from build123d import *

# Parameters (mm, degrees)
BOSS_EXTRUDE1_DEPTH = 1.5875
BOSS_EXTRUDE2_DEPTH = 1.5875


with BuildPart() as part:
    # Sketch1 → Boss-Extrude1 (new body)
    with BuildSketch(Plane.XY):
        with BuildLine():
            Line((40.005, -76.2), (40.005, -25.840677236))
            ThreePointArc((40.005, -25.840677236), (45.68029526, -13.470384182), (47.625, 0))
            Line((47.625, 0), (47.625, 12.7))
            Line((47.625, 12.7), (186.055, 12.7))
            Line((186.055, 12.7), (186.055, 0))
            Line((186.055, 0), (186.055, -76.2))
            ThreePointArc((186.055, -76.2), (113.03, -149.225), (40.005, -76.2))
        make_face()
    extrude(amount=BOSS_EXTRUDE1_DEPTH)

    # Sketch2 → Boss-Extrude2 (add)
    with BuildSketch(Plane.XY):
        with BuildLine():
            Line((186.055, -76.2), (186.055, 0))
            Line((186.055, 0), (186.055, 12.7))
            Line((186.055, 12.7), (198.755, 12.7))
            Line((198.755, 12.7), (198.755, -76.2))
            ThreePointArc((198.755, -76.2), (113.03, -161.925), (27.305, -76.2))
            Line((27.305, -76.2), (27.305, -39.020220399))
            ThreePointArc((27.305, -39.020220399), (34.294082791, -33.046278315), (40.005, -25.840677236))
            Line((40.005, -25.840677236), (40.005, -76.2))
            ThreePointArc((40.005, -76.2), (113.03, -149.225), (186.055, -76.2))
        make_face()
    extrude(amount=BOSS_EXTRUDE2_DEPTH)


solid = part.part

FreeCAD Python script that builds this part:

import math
import FreeCAD as App
import Part
import Sketcher
Q = App.Units.Quantity

doc = App.newDocument("Part")
body = doc.addObject("PartDesign::Body", "Body")

# Sketch on XY plane
sketch1 = body.newObject("Sketcher::SketchObject", "Sketch")
sketch1.AttachmentSupport = (doc.getObject("XY_Plane"), [""])
sketch1.MapMode = "FlatFace"
sketch1.addGeometry([
    Part.LineSegment(App.Vector(40, -26, 0), App.Vector(40, -76, 0)),  # 0
    Part.ArcOfCircle(Part.Circle(App.Vector(113, -76, 0), App.Vector(0, 0, 1), 73), math.radians(180), math.radians(360)),  # 1
    Part.LineSegment(App.Vector(186, -76, 0), App.Vector(186, 13, 0)),  # 2
    Part.LineSegment(App.Vector(186, 13, 0), App.Vector(48, 13, 0)),  # 3
    Part.LineSegment(App.Vector(48, 13, 0), App.Vector(48, 0, 0)),  # 4
    Part.ArcOfCircle(Part.Circle(App.Vector(0, 0, 0), App.Vector(0, 0, 1), 48), math.radians(-33), math.radians(0)),  # 5
], False)
sketch1.addConstraint([
    Sketcher.Constraint("Tangent", 0, 2, 1, 1),
    Sketcher.Constraint("Tangent", 1, 2, 2, 1),
    Sketcher.Constraint("Coincident", 2, 2, 3, 1),
    Sketcher.Constraint("Coincident", 3, 2, 4, 1),
    Sketcher.Constraint("Tangent", 4, 2, 5, 2),
    Sketcher.Constraint("Coincident", 5, 1, 0, 1),
    Sketcher.Constraint("Vertical", 0),
    Sketcher.Constraint("Vertical", 2),
    Sketcher.Constraint("Horizontal", 3),
    Sketcher.Constraint("Vertical", 4),
    Sketcher.Constraint("Coincident", 5, 3, -1, 1),
    Sketcher.Constraint("DistanceY", 2, 1, 2, 2, Q("3.5 in")),
    Sketcher.Constraint("DistanceY", 4, 2, 4, 1, Q("0.5 in")),
    Sketcher.Constraint("Radius", 1, Q("2.875 in")),
    Sketcher.Constraint("Radius", 5, Q("1.875 in")),
    Sketcher.Constraint("DistanceX", 3, 2, 3, 1, Q("5.45 in")),
])
pad1 = body.newObject("PartDesign::Pad", "Pad")
pad1.Profile = sketch1
pad1.Length = Q("0.0625 in")

# Sketch on XY plane
sketch2 = body.newObject("Sketcher::SketchObject", "Sketch001")
sketch2.AttachmentSupport = (doc.getObject("XY_Plane"), [""])
sketch2.MapMode = "FlatFace"
sketch2.addGeometry([
    Part.LineSegment(App.Vector(186, 13, 0), App.Vector(186, -76, 0)),  # 0
    Part.ArcOfCircle(Part.Circle(App.Vector(113, -76, 0), App.Vector(0, 0, 1), 73), math.radians(180), math.radians(360)),  # 1
    Part.LineSegment(App.Vector(40, -76, 0), App.Vector(40, -26, 0)),  # 2
    Part.ArcOfCircle(Part.Circle(App.Vector(0, 0, 0), App.Vector(0, 0, 1), 48), math.radians(-55), math.radians(-33)),  # 3
    Part.LineSegment(App.Vector(27, -39, 0), App.Vector(27, -76, 0)),  # 4
    Part.ArcOfCircle(Part.Circle(App.Vector(113, -76, 0), App.Vector(0, 0, 1), 86), math.radians(180), math.radians(360)),  # 5
    Part.LineSegment(App.Vector(199, -76, 0), App.Vector(199, 13, 0)),  # 6
    Part.LineSegment(App.Vector(199, 13, 0), App.Vector(186, 13, 0)),  # 7
], False)
sketch2.addConstraint([
    Sketcher.Constraint("Tangent", 0, 2, 1, 2),
    Sketcher.Constraint("Tangent", 1, 1, 2, 1),
    Sketcher.Constraint("Coincident", 2, 2, 3, 2),
    Sketcher.Constraint("Coincident", 3, 1, 4, 1),
    Sketcher.Constraint("Tangent", 4, 2, 5, 1),
    Sketcher.Constraint("Tangent", 5, 2, 6, 1),
    Sketcher.Constraint("Coincident", 6, 2, 7, 1),
    Sketcher.Constraint("Coincident", 7, 2, 0, 1),
    Sketcher.Constraint("Vertical", 0),
    Sketcher.Constraint("Vertical", 2),
    Sketcher.Constraint("Vertical", 4),
    Sketcher.Constraint("Vertical", 6),
    Sketcher.Constraint("Horizontal", 7),
    Sketcher.Constraint("Coincident", 3, 3, -1, 1),
    Sketcher.Constraint("Coincident", 5, 3, 1, 3),
    Sketcher.Constraint("DistanceX", 7, 2, 7, 1, Q("0.5 in")),
    Sketcher.Constraint("DistanceY", 0, 2, 0, 1, Q("3.5 in")),
    Sketcher.Constraint("DistanceY", 1, 3, -1, 1, Q("3 in")),
    Sketcher.Constraint("Radius", 1, Q("2.875 in")),
    Sketcher.Constraint("Radius", 3, Q("1.875 in")),
    Sketcher.Constraint("DistanceX", -1, 1, 1, 3, Q("4.45 in")),
])
pad2 = body.newObject("PartDesign::Pad", "Pad001")
pad2.Profile = sketch2
pad2.Length = Q("0.0625 in")

doc.recompute()
